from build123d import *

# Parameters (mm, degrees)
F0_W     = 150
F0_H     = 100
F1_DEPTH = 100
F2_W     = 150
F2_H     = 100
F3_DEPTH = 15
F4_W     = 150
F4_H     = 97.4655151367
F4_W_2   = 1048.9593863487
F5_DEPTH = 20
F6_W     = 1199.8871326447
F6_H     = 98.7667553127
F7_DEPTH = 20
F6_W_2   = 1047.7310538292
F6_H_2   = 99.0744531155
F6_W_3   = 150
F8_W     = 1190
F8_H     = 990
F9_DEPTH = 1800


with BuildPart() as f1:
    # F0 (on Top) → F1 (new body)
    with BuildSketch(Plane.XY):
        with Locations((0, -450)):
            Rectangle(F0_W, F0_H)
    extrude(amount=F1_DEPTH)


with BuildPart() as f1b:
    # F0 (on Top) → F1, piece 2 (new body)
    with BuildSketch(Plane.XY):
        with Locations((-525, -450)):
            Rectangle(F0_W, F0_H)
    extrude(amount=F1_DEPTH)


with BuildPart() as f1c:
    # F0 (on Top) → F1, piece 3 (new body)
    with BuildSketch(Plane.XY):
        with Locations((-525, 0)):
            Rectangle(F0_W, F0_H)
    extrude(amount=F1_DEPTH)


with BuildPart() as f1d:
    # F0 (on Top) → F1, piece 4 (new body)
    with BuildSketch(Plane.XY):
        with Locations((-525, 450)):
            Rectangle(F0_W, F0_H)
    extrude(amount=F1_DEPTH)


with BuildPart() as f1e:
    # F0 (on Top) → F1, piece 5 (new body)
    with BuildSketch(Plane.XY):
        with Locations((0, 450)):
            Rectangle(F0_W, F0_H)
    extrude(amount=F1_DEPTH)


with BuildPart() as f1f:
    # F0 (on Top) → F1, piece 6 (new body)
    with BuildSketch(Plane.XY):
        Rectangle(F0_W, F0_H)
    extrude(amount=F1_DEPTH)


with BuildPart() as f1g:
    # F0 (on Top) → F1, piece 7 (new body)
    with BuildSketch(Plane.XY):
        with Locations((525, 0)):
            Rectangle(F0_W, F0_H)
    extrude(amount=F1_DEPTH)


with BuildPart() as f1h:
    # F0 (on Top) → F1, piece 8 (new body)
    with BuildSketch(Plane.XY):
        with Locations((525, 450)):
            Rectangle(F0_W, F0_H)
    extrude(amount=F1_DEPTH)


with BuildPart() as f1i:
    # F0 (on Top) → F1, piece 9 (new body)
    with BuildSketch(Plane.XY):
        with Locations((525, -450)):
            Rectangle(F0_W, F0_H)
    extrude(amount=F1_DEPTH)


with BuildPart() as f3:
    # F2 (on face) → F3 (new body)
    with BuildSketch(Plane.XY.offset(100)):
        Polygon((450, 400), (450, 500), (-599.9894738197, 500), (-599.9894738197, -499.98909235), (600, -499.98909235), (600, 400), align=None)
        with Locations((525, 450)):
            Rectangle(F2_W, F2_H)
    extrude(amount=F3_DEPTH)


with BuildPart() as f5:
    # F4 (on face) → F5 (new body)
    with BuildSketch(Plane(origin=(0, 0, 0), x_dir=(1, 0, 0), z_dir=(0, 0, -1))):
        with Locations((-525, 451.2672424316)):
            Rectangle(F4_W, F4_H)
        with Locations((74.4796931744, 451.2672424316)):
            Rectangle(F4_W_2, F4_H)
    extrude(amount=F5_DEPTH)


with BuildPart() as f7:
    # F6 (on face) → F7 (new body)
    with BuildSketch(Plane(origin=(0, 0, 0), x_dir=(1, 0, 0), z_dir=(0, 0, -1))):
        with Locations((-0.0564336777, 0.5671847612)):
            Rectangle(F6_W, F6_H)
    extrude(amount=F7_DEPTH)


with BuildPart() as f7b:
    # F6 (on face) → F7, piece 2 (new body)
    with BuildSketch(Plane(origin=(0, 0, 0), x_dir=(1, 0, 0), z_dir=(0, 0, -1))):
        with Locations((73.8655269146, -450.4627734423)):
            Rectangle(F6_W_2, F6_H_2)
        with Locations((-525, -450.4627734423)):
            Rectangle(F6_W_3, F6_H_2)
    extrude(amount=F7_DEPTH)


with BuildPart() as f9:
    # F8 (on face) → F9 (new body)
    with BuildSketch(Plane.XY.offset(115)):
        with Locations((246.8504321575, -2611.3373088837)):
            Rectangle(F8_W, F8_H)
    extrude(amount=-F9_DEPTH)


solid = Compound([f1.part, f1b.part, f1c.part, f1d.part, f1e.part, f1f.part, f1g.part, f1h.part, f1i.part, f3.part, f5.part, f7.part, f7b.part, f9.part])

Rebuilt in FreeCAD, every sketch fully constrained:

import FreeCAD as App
import Part
import Sketcher

V = App.Vector


def add_polygon(sketch, points):
    """Adds a closed chain of lines whose ends are joined by coincident constraints."""
    first, n = sketch.GeometryCount, len(points)
    for a, b in zip(points, points[1:] + points[:1]):
        sketch.addGeometry(Part.LineSegment(App.Vector(*a, 0), App.Vector(*b, 0)), False)
    for i in range(n):
        sketch.addConstraint(Sketcher.Constraint("Coincident", first + i, 2, first + (i + 1) % n, 1))

doc = App.newDocument("Part")
body = doc.addObject("PartDesign::Body", "Body")

sketch1 = doc.addObject("Sketcher::SketchObject", "Sketch")
body.addObject(sketch1)
sketch1.AttachmentSupport = (doc.XY_Plane, [""])
sketch1.MapMode = "FlatFace"
add_polygon(sketch1, [(-75, -400), (-75, -500), (75, -500), (75, -400)])
sketch1.addConstraint([
    Sketcher.Constraint("Vertical", 0),
    Sketcher.Constraint("Horizontal", 1),
    Sketcher.Constraint("Vertical", 2),
    Sketcher.Constraint("Horizontal", 3),
    Sketcher.Constraint("DistanceX", 1, 1, 1, 2, 150.0),
    Sketcher.Constraint("DistanceY", 0, 2, 0, 1, 100.0),
    Sketcher.Constraint("DistanceX", 0, 2, -1, 1, 75.0),
    Sketcher.Constraint("DistanceY", 0, 2, -1, 1, 500.0),
])
pad1 = doc.addObject("PartDesign::Pad", "Pad")
body.addObject(pad1)
pad1.Profile = sketch1
pad1.Length = 100
body2 = doc.addObject("PartDesign::Body", "Body001")

sketch2 = doc.addObject("Sketcher::SketchObject", "Sketch001")
body2.addObject(sketch2)
sketch2.AttachmentSupport = (doc.getObject("XY_Plane001"), [""])
sketch2.MapMode = "FlatFace"
add_polygon(sketch2, [(-600, -400), (-600, -500), (-450, -500), (-450, -400)])
sketch2.addConstraint([
    Sketcher.Constraint("Vertical", 0),
    Sketcher.Constraint("Horizontal", 1),
    Sketcher.Constraint("Vertical", 2),
    Sketcher.Constraint("Horizontal", 3),
    Sketcher.Constraint("DistanceX", 1, 1, 1, 2, 150.0),
    Sketcher.Constraint("DistanceY", 0, 2, 0, 1, 100.0),
    Sketcher.Constraint("DistanceX", 0, 2, -1, 1, 600.0),
    Sketcher.Constraint("DistanceY", 0, 2, -1, 1, 500.0),
])
pad2 = doc.addObject("PartDesign::Pad", "Pad001")
body2.addObject(pad2)
pad2.Profile = sketch2
pad2.Length = 100
body3 = doc.addObject("PartDesign::Body", "Body002")

sketch3 = doc.addObject("Sketcher::SketchObject", "Sketch002")
body3.addObject(sketch3)
sketch3.AttachmentSupport = (doc.getObject("XY_Plane002"), [""])
sketch3.MapMode = "FlatFace"
add_polygon(sketch3, [(-600, 50), (-600, -50), (-450, -50), (-450, 50)])
sketch3.addConstraint([
    Sketcher.Constraint("Vertical", 0),
    Sketcher.Constraint("Horizontal", 1),
    Sketcher.Constraint("Vertical", 2),
    Sketcher.Constraint("Horizontal", 3),
    Sketcher.Constraint("DistanceX", 1, 1, 1, 2, 150.0),
    Sketcher.Constraint("DistanceY", 0, 2, 0, 1, 100.0),
    Sketcher.Constraint("DistanceX", 0, 2, -1, 1, 600.0),
    Sketcher.Constraint("DistanceY", 0, 2, -1, 1, 50.0),
])
pad3 = doc.addObject("PartDesign::Pad", "Pad002")
body3.addObject(pad3)
pad3.Profile = sketch3
pad3.Length = 100
body4 = doc.addObject("PartDesign::Body", "Body003")

sketch4 = doc.addObject("Sketcher::SketchObject", "Sketch003")
body4.addObject(sketch4)
sketch4.AttachmentSupport = (doc.getObject("XY_Plane003"), [""])
sketch4.MapMode = "FlatFace"
add_polygon(sketch4, [(-600, 500), (-600, 400), (-450, 400), (-450, 500)])
sketch4.addConstraint([
    Sketcher.Constraint("Vertical", 0),
    Sketcher.Constraint("Horizontal", 1),
    Sketcher.Constraint("Vertical", 2),
    Sketcher.Constraint("Horizontal", 3),
    Sketcher.Constraint("DistanceX", 1, 1, 1, 2, 150.0),
    Sketcher.Constraint("DistanceY", 0, 2, 0, 1, 100.0),
    Sketcher.Constraint("DistanceX", 0, 2, -1, 1, 600.0),
    Sketcher.Constraint("DistanceY", -1, 1, 0, 2, 400.0),
])
pad4 = doc.addObject("PartDesign::Pad", "Pad003")
body4.addObject(pad4)
pad4.Profile = sketch4
pad4.Length = 100
body5 = doc.addObject("PartDesign::Body", "Body004")

sketch5 = doc.addObject("Sketcher::SketchObject", "Sketch004")
body5.addObject(sketch5)
sketch5.AttachmentSupport = (doc.getObject("XY_Plane004"), [""])
sketch5.MapMode = "FlatFace"
add_polygon(sketch5, [(-75, 500), (-75, 400), (75, 400), (75, 500)])
sketch5.addConstraint([
    Sketcher.Constraint("Vertical", 0),
    Sketcher.Constraint("Horizontal", 1),
    Sketcher.Constraint("Vertical", 2),
    Sketcher.Constraint("Horizontal", 3),
    Sketcher.Constraint("DistanceX", 1, 1, 1, 2, 150.0),
    Sketcher.Constraint("DistanceY", 0, 2, 0, 1, 100.0),
    Sketcher.Constraint("DistanceX", 0, 2, -1, 1, 75.0),
    Sketcher.Constraint("DistanceY", -1, 1, 0, 2, 400.0),
])
pad5 = doc.addObject("PartDesign::Pad", "Pad004")
body5.addObject(pad5)
pad5.Profile = sketch5
pad5.Length = 100
body6 = doc.addObject("PartDesign::Body", "Body005")

sketch6 = doc.addObject("Sketcher::SketchObject", "Sketch005")
body6.addObject(sketch6)
sketch6.AttachmentSupport = (doc.getObject("XY_Plane005"), [""])
sketch6.MapMode = "FlatFace"
add_polygon(sketch6, [(-75, 50), (-75, -50), (75, -50), (75, 50)])
sketch6.addConstraint([
    Sketcher.Constraint("Vertical", 0),
    Sketcher.Constraint("Horizontal", 1),
    Sketcher.Constraint("Vertical", 2),
    Sketcher.Constraint("Horizontal", 3),
    Sketcher.Constraint("Symmetric", 0, 2, 2, 2, -1, 1),
    Sketcher.Constraint("DistanceX", 1, 1, 1, 2, 150.0),
    Sketcher.Constraint("DistanceY", 0, 2, 0, 1, 100.0),
])
pad6 = doc.addObject("PartDesign::Pad", "Pad005")
body6.addObject(pad6)
pad6.Profile = sketch6
pad6.Length = 100
body7 = doc.addObject("PartDesign::Body", "Body006")

sketch7 = doc.addObject("Sketcher::SketchObject", "Sketch006")
body7.addObject(sketch7)
sketch7.AttachmentSupport = (doc.getObject("XY_Plane006"), [""])
sketch7.MapMode = "FlatFace"
add_polygon(sketch7, [(450, 50), (450, -50), (600, -50), (600, 50)])
sketch7.addConstraint([
    Sketcher.Constraint("Vertical", 0),
    Sketcher.Constraint("Horizontal", 1),
    Sketcher.Constraint("Vertical", 2),
    Sketcher.Constraint("Horizontal", 3),
    Sketcher.Constraint("DistanceX", 1, 1, 1, 2, 150.0),
    Sketcher.Constraint("DistanceY", 0, 2, 0, 1, 100.0),
    Sketcher.Constraint("DistanceX", -1, 1, 0, 2, 450.0),
    Sketcher.Constraint("DistanceY", 0, 2, -1, 1, 50.0),
])
pad7 = doc.addObject("PartDesign::Pad", "Pad006")
body7.addObject(pad7)
pad7.Profile = sketch7
pad7.Length = 100
body8 = doc.addObject("PartDesign::Body", "Body007")

sketch8 = doc.addObject("Sketcher::SketchObject", "Sketch007")
body8.addObject(sketch8)
sketch8.AttachmentSupport = (doc.getObject("XY_Plane007"), [""])
sketch8.MapMode = "FlatFace"
add_polygon(sketch8, [(450, 500), (450, 400), (600, 400), (600, 500)])
sketch8.addConstraint([
    Sketcher.Constraint("Vertical", 0),
    Sketcher.Constraint("Horizontal", 1),
    Sketcher.Constraint("Vertical", 2),
    Sketcher.Constraint("Horizontal", 3),
    Sketcher.Constraint("DistanceX", 1, 1, 1, 2, 150.0),
    Sketcher.Constraint("DistanceY", 0, 2, 0, 1, 100.0),
    Sketcher.Constraint("DistanceX", -1, 1, 0, 2, 450.0),
    Sketcher.Constraint("DistanceY", -1, 1, 0, 2, 400.0),
])
pad8 = doc.addObject("PartDesign::Pad", "Pad007")
body8.addObject(pad8)
pad8.Profile = sketch8
pad8.Length = 100
body9 = doc.addObject("PartDesign::Body", "Body008")

sketch9 = doc.addObject("Sketcher::SketchObject", "Sketch008")
body9.addObject(sketch9)
sketch9.AttachmentSupport = (doc.getObject("XY_Plane008"), [""])
sketch9.MapMode = "FlatFace"
add_polygon(sketch9, [(450, -400), (450, -500), (600, -500), (600, -400)])
sketch9.addConstraint([
    Sketcher.Constraint("Vertical", 0),
    Sketcher.Constraint("Horizontal", 1),
    Sketcher.Constraint("Vertical", 2),
    Sketcher.Constraint("Horizontal", 3),
    Sketcher.Constraint("DistanceX", 1, 1, 1, 2, 150.0),
    Sketcher.Constraint("DistanceY", 0, 2, 0, 1, 100.0),
    Sketcher.Constraint("DistanceX", -1, 1, 0, 2, 450.0),
    Sketcher.Constraint("DistanceY", 0, 2, -1, 1, 500.0),
])
pad9 = doc.addObject("PartDesign::Pad", "Pad008")
body9.addObject(pad9)
pad9.Profile = sketch9
pad9.Length = 100
body10 = doc.addObject("PartDesign::Body", "Body009")

sketch10 = doc.addObject("Sketcher::SketchObject", "Sketch009")
body10.addObject(sketch10)
sketch10.AttachmentSupport = (doc.getObject("XY_Plane009"), [""])
sketch10.MapMode = "FlatFace"
sketch10.AttachmentOffset = App.Placement(V(0, 0, 100), App.Rotation())
add_polygon(sketch10, [(-600, 500), (-600, -500), (600, -500), (600, 500)])
sketch10.addConstraint([
    Sketcher.Constraint("Vertical", 0),
    Sketcher.Constraint("Horizontal", 1),
    Sketcher.Constraint("Vertical", 2),
    Sketcher.Constraint("Horizontal", 3),
    Sketcher.Constraint("DistanceX", -1, 1, 1, 2, 600.0),
    Sketcher.Constraint("DistanceY", -1, 1, 2, 2, 500.0),
    Sketcher.Constraint("DistanceX", 1, 1, 1, 2, 1199.989474),
    Sketcher.Constraint("DistanceY", 0, 2, 0, 1, 999.989092),
])
pad10 = doc.addObject("PartDesign::Pad", "Pad009")
body10.addObject(pad10)
pad10.Profile = sketch10
pad10.Length = 15
body11 = doc.addObject("PartDesign::Body", "Body010")

sketch11 = doc.addObject("Sketcher::SketchObject", "Sketch010")
body11.addObject(sketch11)
sketch11.AttachmentSupport = (doc.getObject("XY_Plane010"), [""])
sketch11.MapMode = "FlatFace"
add_polygon(sketch11, [(-600, -500), (-600, -403), (599, -403), (599, -500)])
sketch11.addConstraint([
    Sketcher.Constraint("Vertical", 0),
    Sketcher.Constraint("Horizontal", 1),
    Sketcher.Constraint("Vertical", 2),
    Sketcher.Constraint("Horizontal", 3),
    Sketcher.Constraint("DistanceX", 0, 2, -1, 1, 600.0),
    Sketcher.Constraint("DistanceY", 2, 2, -1, 1, 500.0),
    Sketcher.Constraint("DistanceX", 1, 1, 1, 2, 1198.959386),
    Sketcher.Constraint("DistanceY", 0, 1, 0, 2, 97.465515),
])
pad11 = doc.addObject("PartDesign::Pad", "Pad010")
body11.addObject(pad11)
pad11.Profile = sketch11
pad11.Length = 20
pad11.Reversed = True
body12 = doc.addObject("PartDesign::Body", "Body011")

sketch12 = doc.addObject("Sketcher::SketchObject", "Sketch011")
body12.addObject(sketch12)
sketch12.AttachmentSupport = (doc.getObject("XY_Plane011"), [""])
sketch12.MapMode = "FlatFace"
add_polygon(sketch12, [(-600, -50), (-600, 49), (600, 49), (600, -50)])
sketch12.addConstraint([
    Sketcher.Constraint("Vertical", 0),
    Sketcher.Constraint("Horizontal", 1),
    Sketcher.Constraint("Vertical", 2),
    Sketcher.Constraint("Horizontal", 3),
    Sketcher.Constraint("DistanceX", 0, 2, -1, 1, 600.0),
    Sketcher.Constraint("DistanceX", 1, 1, 1, 2, 1199.887133),
    Sketcher.Constraint("DistanceY", 0, 1, 0, 2, 98.766755),
    Sketcher.Constraint("DistanceY", -1, 1, 0, 2, 48.816193),
])
pad12 = doc.addObject("PartDesign::Pad", "Pad011")
body12.addObject(pad12)
pad12.Profile = sketch12
pad12.Length = 20
pad12.Reversed = True
body13 = doc.addObject("PartDesign::Body", "Body012")

sketch13 = doc.addObject("Sketcher::SketchObject", "Sketch012")
body13.addObject(sketch13)
sketch13.AttachmentSupport = (doc.getObject("XY_Plane012"), [""])
sketch13.MapMode = "FlatFace"
add_polygon(sketch13, [(598, 500), (598, 401), (-600, 401), (-600, 500)])
sketch13.addConstraint([
    Sketcher.Constraint("Vertical", 0),
    Sketcher.Constraint("Horizontal", 1),
    Sketcher.Constraint("Vertical", 2),
    Sketcher.Constraint("Horizontal", 3),
    Sketcher.Constraint("DistanceX", 1, 2, -1, 1, 600.0),
    Sketcher.Constraint("DistanceY", -1, 1, 2, 2, 500.0),
    Sketcher.Constraint("DistanceX", 1, 2, 1, 1, 1197.731054),
    Sketcher.Constraint("DistanceY", 0, 2, 0, 1, 99.074453),
])
pad13 = doc.addObject("PartDesign::Pad", "Pad012")
body13.addObject(pad13)
pad13.Profile = sketch13
pad13.Length = 20
pad13.Reversed = True
body14 = doc.addObject("PartDesign::Body", "Body013")

sketch14 = doc.addObject("Sketcher::SketchObject", "Sketch013")
body14.addObject(sketch14)
sketch14.AttachmentSupport = (doc.getObject("XY_Plane013"), [""])
sketch14.MapMode = "FlatFace"
sketch14.AttachmentOffset = App.Placement(V(0, 0, 115), App.Rotation())
add_polygon(sketch14, [(-348, -2116), (-348, -3106), (842, -3106), (842, -2116)])
sketch14.addConstraint([
    Sketcher.Constraint("Vertical", 0),
    Sketcher.Constraint("Horizontal", 1),
    Sketcher.Constraint("Vertical", 2),
    Sketcher.Constraint("Horizontal", 3),
    Sketcher.Constraint("DistanceX", 1, 1, 1, 2, 1190.0),
    Sketcher.Constraint("DistanceY", 0, 2, 0, 1, 990.0),
    Sketcher.Constraint("DistanceY", 0, 2, -1, 1, 3106.337309),
    Sketcher.Constraint("DistanceX", 0, 2, -1, 1, 348.149568),
])
pad14 = doc.addObject("PartDesign::Pad", "Pad013")
body14.addObject(pad14)
pad14.Profile = sketch14
pad14.Length = 1800
pad14.Reversed = True

doc.recompute()
